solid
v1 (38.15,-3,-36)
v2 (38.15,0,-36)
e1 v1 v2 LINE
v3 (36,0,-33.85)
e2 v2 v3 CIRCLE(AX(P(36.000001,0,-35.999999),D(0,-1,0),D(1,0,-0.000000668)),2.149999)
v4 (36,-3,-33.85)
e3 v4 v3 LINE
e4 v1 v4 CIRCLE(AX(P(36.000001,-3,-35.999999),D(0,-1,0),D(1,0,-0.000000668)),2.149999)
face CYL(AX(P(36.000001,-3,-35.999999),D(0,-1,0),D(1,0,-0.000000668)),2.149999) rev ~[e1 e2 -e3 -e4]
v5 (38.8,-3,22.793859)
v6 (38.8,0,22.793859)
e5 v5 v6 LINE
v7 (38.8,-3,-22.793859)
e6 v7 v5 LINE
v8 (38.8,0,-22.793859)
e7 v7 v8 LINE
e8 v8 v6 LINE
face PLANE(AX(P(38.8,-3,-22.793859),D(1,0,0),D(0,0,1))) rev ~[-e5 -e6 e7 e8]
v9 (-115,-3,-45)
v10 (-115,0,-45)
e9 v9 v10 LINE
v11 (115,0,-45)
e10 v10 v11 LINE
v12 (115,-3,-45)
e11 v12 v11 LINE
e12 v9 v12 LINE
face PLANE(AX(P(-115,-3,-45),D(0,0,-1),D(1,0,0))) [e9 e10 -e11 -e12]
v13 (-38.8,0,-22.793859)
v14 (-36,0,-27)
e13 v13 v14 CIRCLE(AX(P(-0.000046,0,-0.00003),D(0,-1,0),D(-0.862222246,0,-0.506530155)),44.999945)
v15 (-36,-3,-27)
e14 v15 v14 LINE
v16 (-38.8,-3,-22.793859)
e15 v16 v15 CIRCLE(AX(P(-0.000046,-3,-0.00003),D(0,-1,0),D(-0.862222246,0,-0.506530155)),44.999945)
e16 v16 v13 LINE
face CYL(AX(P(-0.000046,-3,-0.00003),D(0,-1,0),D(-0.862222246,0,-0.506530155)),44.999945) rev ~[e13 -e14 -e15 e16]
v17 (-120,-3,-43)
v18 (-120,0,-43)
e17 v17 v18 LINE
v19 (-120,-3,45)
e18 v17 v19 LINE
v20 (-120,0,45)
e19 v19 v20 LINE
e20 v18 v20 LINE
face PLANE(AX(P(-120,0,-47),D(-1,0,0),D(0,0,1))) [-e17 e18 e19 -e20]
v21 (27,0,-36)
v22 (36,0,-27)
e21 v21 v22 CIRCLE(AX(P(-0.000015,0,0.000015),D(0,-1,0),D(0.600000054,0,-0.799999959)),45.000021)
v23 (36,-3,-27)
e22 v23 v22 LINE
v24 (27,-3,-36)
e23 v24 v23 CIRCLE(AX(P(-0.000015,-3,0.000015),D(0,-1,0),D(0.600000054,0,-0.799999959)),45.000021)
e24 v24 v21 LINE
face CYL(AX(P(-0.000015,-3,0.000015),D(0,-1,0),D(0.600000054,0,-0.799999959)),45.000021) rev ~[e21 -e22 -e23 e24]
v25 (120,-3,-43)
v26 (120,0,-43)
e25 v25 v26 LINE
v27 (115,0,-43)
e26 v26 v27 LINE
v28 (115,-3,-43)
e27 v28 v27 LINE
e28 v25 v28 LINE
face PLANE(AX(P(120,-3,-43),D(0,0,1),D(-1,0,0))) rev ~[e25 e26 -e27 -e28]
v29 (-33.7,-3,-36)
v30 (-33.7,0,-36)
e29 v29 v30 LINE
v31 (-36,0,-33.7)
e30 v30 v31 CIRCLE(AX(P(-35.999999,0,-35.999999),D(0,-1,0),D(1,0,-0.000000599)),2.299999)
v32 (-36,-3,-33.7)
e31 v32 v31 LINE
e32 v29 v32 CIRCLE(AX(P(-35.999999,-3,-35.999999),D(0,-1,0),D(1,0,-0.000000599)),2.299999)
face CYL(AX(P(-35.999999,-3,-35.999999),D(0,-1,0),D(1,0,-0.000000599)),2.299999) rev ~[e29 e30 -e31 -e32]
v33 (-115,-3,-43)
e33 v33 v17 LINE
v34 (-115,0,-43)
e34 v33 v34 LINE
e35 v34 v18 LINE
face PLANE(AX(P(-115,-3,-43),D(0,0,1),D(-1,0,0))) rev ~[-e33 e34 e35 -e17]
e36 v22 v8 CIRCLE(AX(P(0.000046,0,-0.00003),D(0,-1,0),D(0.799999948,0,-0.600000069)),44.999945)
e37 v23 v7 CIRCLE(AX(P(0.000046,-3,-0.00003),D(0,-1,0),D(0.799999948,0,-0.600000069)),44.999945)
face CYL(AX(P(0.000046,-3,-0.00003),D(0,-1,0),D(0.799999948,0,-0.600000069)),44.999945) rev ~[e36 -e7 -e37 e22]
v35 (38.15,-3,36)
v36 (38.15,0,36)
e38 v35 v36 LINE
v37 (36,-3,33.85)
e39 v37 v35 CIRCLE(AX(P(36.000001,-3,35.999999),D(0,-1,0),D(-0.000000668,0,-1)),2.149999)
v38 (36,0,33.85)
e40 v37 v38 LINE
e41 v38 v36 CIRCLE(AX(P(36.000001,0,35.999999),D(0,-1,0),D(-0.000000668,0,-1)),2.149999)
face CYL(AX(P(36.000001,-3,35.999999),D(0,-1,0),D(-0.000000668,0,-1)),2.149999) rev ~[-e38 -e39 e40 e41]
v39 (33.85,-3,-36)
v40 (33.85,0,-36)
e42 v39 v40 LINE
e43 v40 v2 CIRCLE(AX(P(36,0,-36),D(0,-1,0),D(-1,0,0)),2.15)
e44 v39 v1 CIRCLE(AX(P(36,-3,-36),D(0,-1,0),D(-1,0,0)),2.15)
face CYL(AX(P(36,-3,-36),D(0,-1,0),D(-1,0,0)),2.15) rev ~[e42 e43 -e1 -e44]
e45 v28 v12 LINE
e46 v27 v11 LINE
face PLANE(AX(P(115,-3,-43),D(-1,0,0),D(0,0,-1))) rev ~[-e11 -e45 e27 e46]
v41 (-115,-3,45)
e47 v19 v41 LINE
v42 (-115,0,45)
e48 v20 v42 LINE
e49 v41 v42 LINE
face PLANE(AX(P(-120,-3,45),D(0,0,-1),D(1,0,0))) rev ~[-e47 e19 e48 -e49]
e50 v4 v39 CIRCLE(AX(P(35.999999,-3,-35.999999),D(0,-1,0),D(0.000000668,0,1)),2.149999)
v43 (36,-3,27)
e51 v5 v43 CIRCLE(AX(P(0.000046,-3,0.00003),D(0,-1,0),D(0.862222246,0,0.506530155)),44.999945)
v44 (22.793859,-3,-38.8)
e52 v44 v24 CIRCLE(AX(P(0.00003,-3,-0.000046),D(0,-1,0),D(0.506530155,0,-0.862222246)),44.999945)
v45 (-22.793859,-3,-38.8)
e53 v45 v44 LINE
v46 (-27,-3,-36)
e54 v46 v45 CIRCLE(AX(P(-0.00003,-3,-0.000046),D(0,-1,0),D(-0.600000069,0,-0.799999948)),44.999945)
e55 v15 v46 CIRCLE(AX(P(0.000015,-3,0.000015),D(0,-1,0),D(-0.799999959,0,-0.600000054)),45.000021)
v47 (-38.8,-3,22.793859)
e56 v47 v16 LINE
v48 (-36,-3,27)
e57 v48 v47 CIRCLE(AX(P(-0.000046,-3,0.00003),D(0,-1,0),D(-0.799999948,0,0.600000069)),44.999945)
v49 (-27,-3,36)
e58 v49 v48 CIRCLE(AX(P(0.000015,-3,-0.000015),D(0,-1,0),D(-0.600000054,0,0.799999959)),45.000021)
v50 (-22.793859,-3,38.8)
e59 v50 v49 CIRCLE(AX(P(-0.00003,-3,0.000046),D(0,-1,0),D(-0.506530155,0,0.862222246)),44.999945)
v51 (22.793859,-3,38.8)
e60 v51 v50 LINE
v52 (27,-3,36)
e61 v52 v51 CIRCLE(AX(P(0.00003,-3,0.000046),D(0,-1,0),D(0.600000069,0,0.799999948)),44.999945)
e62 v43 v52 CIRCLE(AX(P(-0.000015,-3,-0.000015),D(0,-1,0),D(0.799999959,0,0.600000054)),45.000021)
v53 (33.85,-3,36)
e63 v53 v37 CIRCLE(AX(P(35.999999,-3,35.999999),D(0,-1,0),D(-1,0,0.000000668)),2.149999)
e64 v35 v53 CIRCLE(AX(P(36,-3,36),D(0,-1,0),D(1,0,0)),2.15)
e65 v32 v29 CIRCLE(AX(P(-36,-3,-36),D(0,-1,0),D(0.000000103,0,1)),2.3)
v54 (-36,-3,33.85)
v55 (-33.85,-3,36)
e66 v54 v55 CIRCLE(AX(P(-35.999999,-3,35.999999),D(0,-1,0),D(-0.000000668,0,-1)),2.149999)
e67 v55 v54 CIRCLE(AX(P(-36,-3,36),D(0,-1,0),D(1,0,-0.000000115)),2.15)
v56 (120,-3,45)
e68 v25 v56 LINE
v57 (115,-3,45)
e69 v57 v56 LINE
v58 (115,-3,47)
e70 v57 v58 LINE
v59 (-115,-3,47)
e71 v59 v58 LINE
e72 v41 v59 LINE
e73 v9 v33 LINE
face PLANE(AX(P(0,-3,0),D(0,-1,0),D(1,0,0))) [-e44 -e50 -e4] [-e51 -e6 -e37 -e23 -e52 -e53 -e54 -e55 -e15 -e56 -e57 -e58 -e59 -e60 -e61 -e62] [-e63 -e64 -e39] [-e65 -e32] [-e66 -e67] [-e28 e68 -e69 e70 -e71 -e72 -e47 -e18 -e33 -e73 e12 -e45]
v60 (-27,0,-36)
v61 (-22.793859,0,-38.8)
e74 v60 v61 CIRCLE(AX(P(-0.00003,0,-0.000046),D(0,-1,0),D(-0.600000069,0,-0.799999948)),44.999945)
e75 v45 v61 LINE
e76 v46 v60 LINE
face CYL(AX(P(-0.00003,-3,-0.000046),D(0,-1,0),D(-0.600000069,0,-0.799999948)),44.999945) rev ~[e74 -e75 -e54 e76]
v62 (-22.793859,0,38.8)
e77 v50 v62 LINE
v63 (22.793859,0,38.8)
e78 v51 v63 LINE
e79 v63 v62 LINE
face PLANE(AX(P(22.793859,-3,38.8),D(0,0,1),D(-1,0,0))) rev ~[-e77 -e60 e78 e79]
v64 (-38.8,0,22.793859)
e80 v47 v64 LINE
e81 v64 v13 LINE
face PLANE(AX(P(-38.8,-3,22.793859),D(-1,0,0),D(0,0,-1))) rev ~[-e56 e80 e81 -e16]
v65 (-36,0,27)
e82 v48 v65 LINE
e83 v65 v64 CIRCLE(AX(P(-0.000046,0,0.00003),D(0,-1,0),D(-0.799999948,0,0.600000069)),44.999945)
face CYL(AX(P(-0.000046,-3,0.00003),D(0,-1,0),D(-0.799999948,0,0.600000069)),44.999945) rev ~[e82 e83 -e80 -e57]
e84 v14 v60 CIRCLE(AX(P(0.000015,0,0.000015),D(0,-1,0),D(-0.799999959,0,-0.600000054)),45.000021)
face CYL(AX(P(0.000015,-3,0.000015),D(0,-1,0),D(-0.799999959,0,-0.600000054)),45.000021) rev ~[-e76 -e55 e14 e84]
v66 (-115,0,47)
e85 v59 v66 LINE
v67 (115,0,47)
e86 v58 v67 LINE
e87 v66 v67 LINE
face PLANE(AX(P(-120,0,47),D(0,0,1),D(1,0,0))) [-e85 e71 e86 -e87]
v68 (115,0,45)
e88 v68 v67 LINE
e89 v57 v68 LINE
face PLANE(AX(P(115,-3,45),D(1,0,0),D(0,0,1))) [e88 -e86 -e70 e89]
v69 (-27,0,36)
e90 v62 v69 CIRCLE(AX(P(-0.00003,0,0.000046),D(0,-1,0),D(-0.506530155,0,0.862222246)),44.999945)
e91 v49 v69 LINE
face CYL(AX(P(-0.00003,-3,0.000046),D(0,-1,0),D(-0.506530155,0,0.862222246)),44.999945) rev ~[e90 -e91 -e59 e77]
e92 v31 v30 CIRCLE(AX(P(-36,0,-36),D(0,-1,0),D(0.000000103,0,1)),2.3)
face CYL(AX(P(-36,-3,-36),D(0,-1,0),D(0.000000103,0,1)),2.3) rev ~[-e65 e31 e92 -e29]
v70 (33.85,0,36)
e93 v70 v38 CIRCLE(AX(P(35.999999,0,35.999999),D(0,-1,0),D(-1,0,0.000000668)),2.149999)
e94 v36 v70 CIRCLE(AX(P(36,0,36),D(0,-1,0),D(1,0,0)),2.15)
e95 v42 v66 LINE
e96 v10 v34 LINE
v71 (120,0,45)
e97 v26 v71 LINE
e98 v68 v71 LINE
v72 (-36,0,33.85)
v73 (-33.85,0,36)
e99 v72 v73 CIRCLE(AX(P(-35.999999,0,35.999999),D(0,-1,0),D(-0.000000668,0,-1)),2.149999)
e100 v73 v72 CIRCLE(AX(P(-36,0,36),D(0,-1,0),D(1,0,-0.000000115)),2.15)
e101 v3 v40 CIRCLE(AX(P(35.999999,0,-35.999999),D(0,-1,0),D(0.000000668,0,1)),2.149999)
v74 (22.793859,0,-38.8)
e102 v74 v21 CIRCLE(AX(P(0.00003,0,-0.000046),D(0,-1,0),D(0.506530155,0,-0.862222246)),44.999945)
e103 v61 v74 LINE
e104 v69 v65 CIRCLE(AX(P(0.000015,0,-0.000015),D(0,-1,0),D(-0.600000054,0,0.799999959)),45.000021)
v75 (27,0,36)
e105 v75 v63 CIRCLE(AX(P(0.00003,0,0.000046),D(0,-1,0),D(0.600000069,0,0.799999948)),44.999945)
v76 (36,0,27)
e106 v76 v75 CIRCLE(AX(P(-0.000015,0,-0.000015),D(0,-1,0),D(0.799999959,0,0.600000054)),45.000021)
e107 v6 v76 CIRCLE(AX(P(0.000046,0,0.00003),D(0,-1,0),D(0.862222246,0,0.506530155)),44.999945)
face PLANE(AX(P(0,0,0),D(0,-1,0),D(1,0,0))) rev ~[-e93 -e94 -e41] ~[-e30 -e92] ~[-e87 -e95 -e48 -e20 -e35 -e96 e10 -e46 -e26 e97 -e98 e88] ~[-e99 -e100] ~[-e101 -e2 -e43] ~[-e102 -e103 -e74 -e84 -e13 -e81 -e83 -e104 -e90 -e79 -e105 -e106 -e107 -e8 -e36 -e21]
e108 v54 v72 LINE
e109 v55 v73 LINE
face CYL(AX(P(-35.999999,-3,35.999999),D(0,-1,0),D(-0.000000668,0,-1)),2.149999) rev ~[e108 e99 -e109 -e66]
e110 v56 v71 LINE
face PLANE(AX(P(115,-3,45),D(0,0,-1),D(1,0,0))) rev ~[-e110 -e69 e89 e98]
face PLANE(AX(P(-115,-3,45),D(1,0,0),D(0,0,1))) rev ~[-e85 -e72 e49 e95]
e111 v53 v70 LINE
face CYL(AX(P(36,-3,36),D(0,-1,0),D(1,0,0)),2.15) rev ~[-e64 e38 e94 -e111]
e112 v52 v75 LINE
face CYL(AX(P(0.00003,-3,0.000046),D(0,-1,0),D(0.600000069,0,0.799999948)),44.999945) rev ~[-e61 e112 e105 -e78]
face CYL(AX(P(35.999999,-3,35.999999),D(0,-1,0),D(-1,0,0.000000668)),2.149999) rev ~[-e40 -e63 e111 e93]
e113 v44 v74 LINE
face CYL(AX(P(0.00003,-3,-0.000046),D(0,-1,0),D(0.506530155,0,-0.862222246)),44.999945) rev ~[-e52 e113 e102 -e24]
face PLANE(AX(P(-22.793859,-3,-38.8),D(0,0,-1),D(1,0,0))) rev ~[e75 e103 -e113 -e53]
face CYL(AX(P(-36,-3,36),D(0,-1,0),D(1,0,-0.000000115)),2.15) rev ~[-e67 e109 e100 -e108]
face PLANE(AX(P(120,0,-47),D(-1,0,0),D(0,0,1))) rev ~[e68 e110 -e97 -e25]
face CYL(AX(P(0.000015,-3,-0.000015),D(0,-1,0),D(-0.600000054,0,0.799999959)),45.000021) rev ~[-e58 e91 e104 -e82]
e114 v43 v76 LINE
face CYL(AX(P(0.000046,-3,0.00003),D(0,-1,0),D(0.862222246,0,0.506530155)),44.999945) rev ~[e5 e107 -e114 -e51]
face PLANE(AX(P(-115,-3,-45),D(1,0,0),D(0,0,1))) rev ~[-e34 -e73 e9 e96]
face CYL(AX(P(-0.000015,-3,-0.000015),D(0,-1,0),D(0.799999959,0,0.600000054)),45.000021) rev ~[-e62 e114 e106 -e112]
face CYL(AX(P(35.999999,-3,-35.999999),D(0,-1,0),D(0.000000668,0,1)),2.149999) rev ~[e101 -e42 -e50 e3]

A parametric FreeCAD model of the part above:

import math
import FreeCAD as App
import Part
import Sketcher

V = App.Vector


def add_polygon(sketch, points):
    """Adds a closed chain of lines whose ends are joined by coincident constraints."""
    first, n = sketch.GeometryCount, len(points)
    for a, b in zip(points, points[1:] + points[:1]):
        sketch.addGeometry(Part.LineSegment(App.Vector(*a, 0), App.Vector(*b, 0)), False)
    for i in range(n):
        sketch.addConstraint(Sketcher.Constraint("Coincident", first + i, 2, first + (i + 1) % n, 1))

doc = App.newDocument("Part")
body = doc.addObject("PartDesign::Body", "Body")

sketch1 = body.newObject("Sketcher::SketchObject", "Sketch")
sketch1.AttachmentSupport = (doc.getObject("XZ_Plane"), [""])
sketch1.MapMode = "FlatFace"
add_polygon(sketch1, [(-120, 47), (-120, -47), (120, -47), (120, 47)])
sketch1.addConstraint([
    Sketcher.Constraint("Vertical", 0),
    Sketcher.Constraint("Horizontal", 1),
    Sketcher.Constraint("Vertical", 2),
    Sketcher.Constraint("Horizontal", 3),
    Sketcher.Constraint("Symmetric", 0, 2, 2, 2, -1, 1),
    Sketcher.Constraint("DistanceX", 1, 1, 1, 2, 240.0),
    Sketcher.Constraint("DistanceY", 0, 2, 0, 1, 94.0),
])
pad1 = body.newObject("PartDesign::Pad", "Pad")
pad1.Profile = sketch1
pad1.Length = 3

sketch2 = body.newObject("Sketcher::SketchObject", "Sketch001")
sketch2.AttachmentSupport = (doc.getObject("XZ_Plane"), [""])
sketch2.MapMode = "FlatFace"
sketch2.AttachmentOffset = App.Placement(V(0, 0, 3), App.Rotation())
add_polygon(sketch2, [(-120, 47), (-120, 45), (-115, 45), (-115, 47)])
add_polygon(sketch2, [(-120, -43), (-120, -47), (120, -47), (120, -43), (115, -43), (115, -45), (-115, -45), (-115, -43)])
add_polygon(sketch2, [(115, 47), (115, 45), (120, 45), (120, 47)])
sketch2.addConstraint([
    Sketcher.Constraint("Vertical", 0),
    Sketcher.Constraint("Horizontal", 1),
    Sketcher.Constraint("Vertical", 2),
    Sketcher.Constraint("Horizontal", 3),
    Sketcher.Constraint("Vertical", 4),
    Sketcher.Constraint("Horizontal", 5),
    Sketcher.Constraint("Vertical", 6),
    Sketcher.Constraint("Horizontal", 7),
    Sketcher.Constraint("Vertical", 8),
    Sketcher.Constraint("Horizontal", 9),
    Sketcher.Constraint("Vertical", 10),
    Sketcher.Constraint("Horizontal", 11),
    Sketcher.Constraint("Vertical", 12),
    Sketcher.Constraint("Horizontal", 13),
    Sketcher.Constraint("Vertical", 14),
    Sketcher.Constraint("Horizontal", 15),
    Sketcher.Constraint("Symmetric", 3, 2, 5, 2, -1, 1),
    Sketcher.Constraint("Symmetric", 1, 2, 8, 2, -1, 1),
    Sketcher.Constraint("Symmetric", 9, 2, 12, 2, -1, 1),
    Sketcher.Constraint("Symmetric", 4, 2, 14, 2, -1, 1),
    Sketcher.Constraint("Symmetric", 7, 2, 10, 2, -2),
    Sketcher.Constraint("Vertical", 3, 2, 4, 2),
    Sketcher.Constraint("Equal", 2, 8),
    Sketcher.Constraint("DistanceX", 1, 1, 1, 2, 5.0),
    Sketcher.Constraint("DistanceX", 5, 1, 5, 2, 240.0),
    Sketcher.Constraint("DistanceY", 0, 2, 0, 1, 2.0),
    Sketcher.Constraint("DistanceY", -1, 1, 0, 2, 45.0),
])
pocket1 = body.newObject("PartDesign::Pocket", "Pocket")
pocket1.Profile = sketch2
pocket1.Length = 25

sketch3 = body.newObject("Sketcher::SketchObject", "Sketch002")
sketch3.AttachmentSupport = (doc.getObject("XZ_Plane"), [""])
sketch3.MapMode = "FlatFace"
sketch3.AttachmentOffset = App.Placement(V(0, 0, 3), App.Rotation())
sketch3.addGeometry([
    Part.ArcOfCircle(Part.Circle(V(-35.999999, 35.999999, 0), V(0, 0, 1), 2.149999), math.radians(-90.000038), math.radians(0.000038)),
    Part.ArcOfCircle(Part.Circle(V(-36, 36, 0), V(0, 0, 1), 2.15), math.radians(-0.000007), math.radians(270.000007)),
    Part.ArcOfCircle(Part.Circle(V(36.000001, 35.999999, 0), V(0, 0, 1), 2.149999), math.radians(-90.000038), math.radians(0.000038)),
    Part.ArcOfCircle(Part.Circle(V(36, 36, 0), V(0, 0, 1), 2.15), math.radians(0), math.radians(180)),
    Part.ArcOfCircle(Part.Circle(V(35.999999, 35.999999, 0), V(0, 0, 1), 2.149999), math.radians(179.999962), math.radians(270.000038)),
    Part.ArcOfCircle(Part.Circle(V(36, -36, 0), V(0, 0, 1), 2.15), math.radians(180), math.radians(360)),
    Part.ArcOfCircle(Part.Circle(V(36.000001, -35.999999, 0), V(0, 0, 1), 2.149999), math.radians(-0.000038), math.radians(90.000038)),
    Part.ArcOfCircle(Part.Circle(V(35.999999, -35.999999, 0), V(0, 0, 1), 2.149999), math.radians(89.999962), math.radians(180.000038)),
    Part.ArcOfCircle(Part.Circle(V(-36, -36, 0), V(0, 0, 1), 2.3), math.radians(89.999994), math.radians(360.000006)),
    Part.ArcOfCircle(Part.Circle(V(-35.999999, -35.999999, 0), V(0, 0, 1), 2.299999), math.radians(-0.000034), math.radians(90.000034)),
    Part.ArcOfCircle(Part.Circle(V(0.00003, -0.000046, 0), V(0, 0, 1), 44.999945), math.radians(-59.56702), math.radians(-53.130097)),
    Part.ArcOfCircle(Part.Circle(V(-0.000015, 0.000015, 0), V(0, 0, 1), 45.000021), math.radians(-53.130098), math.radians(-36.869902)),
    Part.ArcOfCircle(Part.Circle(V(0.000046, -0.00003, 0), V(0, 0, 1), 44.999945), math.radians(-36.869903), math.radians(-30.43298)),
    Part.LineSegment(V(38.8, -22.793859, 0), V(38.8, 22.793859, 0)),
    Part.ArcOfCircle(Part.Circle(V(0.000046, 0.00003, 0), V(0, 0, 1), 44.999945), math.radians(30.43298), math.radians(36.869903)),
    Part.ArcOfCircle(Part.Circle(V(-0.000015, -0.000015, 0), V(0, 0, 1), 45.000021), math.radians(36.869902), math.radians(53.130098)),
    Part.ArcOfCircle(Part.Circle(V(0.00003, 0.000046, 0), V(0, 0, 1), 44.999945), math.radians(53.130097), math.radians(59.56702)),
    Part.LineSegment(V(22.793859, 38.8, 0), V(-22.793859, 38.8, 0)),
    Part.ArcOfCircle(Part.Circle(V(-0.00003, 0.000046, 0), V(0, 0, 1), 44.999945), math.radians(120.43298), math.radians(126.869903)),
    Part.ArcOfCircle(Part.Circle(V(0.000015, -0.000015, 0), V(0, 0, 1), 45.000021), math.radians(126.869902), math.radians(143.130098)),
    Part.ArcOfCircle(Part.Circle(V(-0.000046, 0.00003, 0), V(0, 0, 1), 44.999945), math.radians(143.130097), math.radians(149.56702)),
    Part.LineSegment(V(-38.8, 22.793859, 0), V(-38.8, -22.793859, 0)),
    Part.ArcOfCircle(Part.Circle(V(-0.000046, -0.00003, 0), V(0, 0, 1), 44.999945), math.radians(-149.56702), math.radians(-143.130097)),
    Part.ArcOfCircle(Part.Circle(V(0.000015, 0.000015, 0), V(0, 0, 1), 45.000021), math.radians(-143.130098), math.radians(-126.869902)),
    Part.ArcOfCircle(Part.Circle(V(-0.00003, -0.000046, 0), V(0, 0, 1), 44.999945), math.radians(-126.869903), math.radians(-120.43298)),
    Part.LineSegment(V(-22.793859, -38.8, 0), V(22.793859, -38.8, 0)),
], False)
sketch3.addConstraint([
    Sketcher.Constraint("Tangent", 0, 1, 1, 2),
    Sketcher.Constraint("Coincident", 1, 1, 0, 2),
    Sketcher.Constraint("Tangent", 2, 2, 3, 1),
    Sketcher.Constraint("Tangent", 3, 2, 4, 1),
    Sketcher.Constraint("Tangent", 4, 2, 2, 1),
    Sketcher.Constraint("Tangent", 5, 2, 6, 1),
    Sketcher.Constraint("Tangent", 6, 2, 7, 1),
    Sketcher.Constraint("Tangent", 7, 2, 5, 1),
    Sketcher.Constraint("Tangent", 8, 1, 9, 2),
    Sketcher.Constraint("Coincident", 9, 1, 8, 2),
    Sketcher.Constraint("Tangent", 10, 2, 11, 1),
    Sketcher.Constraint("Tangent", 11, 2, 12, 1),
    Sketcher.Constraint("Coincident", 12, 2, 13, 1),
    Sketcher.Constraint("Coincident", 13, 2, 14, 1),
    Sketcher.Constraint("Tangent", 14, 2, 15, 1),
    Sketcher.Constraint("Tangent", 15, 2, 16, 1),
    Sketcher.Constraint("Coincident", 16, 2, 17, 1),
    Sketcher.Constraint("Coincident", 17, 2, 18, 1),
    Sketcher.Constraint("Tangent", 18, 2, 19, 1),
    Sketcher.Constraint("Tangent", 19, 2, 20, 1),
    Sketcher.Constraint("Coincident", 20, 2, 21, 1),
    Sketcher.Constraint("Coincident", 21, 2, 22, 1),
    Sketcher.Constraint("Tangent", 22, 2, 23, 1),
    Sketcher.Constraint("Tangent", 23, 2, 24, 1),
    Sketcher.Constraint("Coincident", 24, 2, 25, 1),
    Sketcher.Constraint("Coincident", 25, 2, 10, 1),
    Sketcher.Constraint("Vertical", 13),
    Sketcher.Constraint("Horizontal", 17),
    Sketcher.Constraint("Vertical", 21),
    Sketcher.Constraint("Horizontal", 25),
    Sketcher.Constraint("Equal", 1, 2),
    Sketcher.Constraint("Equal", 4, 5),
    Sketcher.Constraint("Equal", 10, 12),
    Sketcher.Constraint("Equal", 12, 14),
    Sketcher.Constraint("Equal", 11, 15),
    Sketcher.Constraint("Equal", 14, 16),
    Sketcher.Constraint("Equal", 16, 18),
    Sketcher.Constraint("Equal", 15, 19),
    Sketcher.Constraint("Equal", 18, 20),
    Sketcher.Constraint("Equal", 20, 22),
    Sketcher.Constraint("Equal", 19, 23),
    Sketcher.Constraint("Equal", 22, 24),
    Sketcher.Constraint("Symmetric", 0, 3, 5, 3, -1, 1),
    Sketcher.Constraint("Symmetric", 2, 3, 8, 3, -1, 1),
    Sketcher.Constraint("Symmetric", 10, 3, 18, 3, -1, 1),
    Sketcher.Constraint("Symmetric", 14, 3, 22, 3, -1, 1),
    Sketcher.Constraint("Symmetric", 0, 3, 2, 3, -2),
    Sketcher.Constraint("Symmetric", 16, 3, 18, 3, -2),
    Sketcher.Constraint("Horizontal", 4, 3, 1, 1),
    Sketcher.Constraint("Horizontal", 1, 1, 2, 2),
    Sketcher.Constraint("Horizontal", 2, 2, 3, 2),
    Sketcher.Constraint("Horizontal", 9, 3, 5, 2),
    Sketcher.Constraint("Horizontal", 5, 2, 7, 2),
    Sketcher.Constraint("Horizontal", 7, 2, 9, 1),
    Sketcher.Constraint("Horizontal", 9, 1, 10, 2),
    Sketcher.Constraint("Horizontal", 3, 2, 15, 2),
    Sketcher.Constraint("Horizontal", 15, 2, 18, 2),
    Sketcher.Constraint("Horizontal", 14, 2, 19, 2),
    Sketcher.Constraint("Horizontal", 13, 2, 20, 2),
    Sketcher.Constraint("Horizontal", 11, 2, 22, 2),
    Sketcher.Constraint("Horizontal", 10, 2, 23, 2),
    Sketcher.Constraint("Vertical", 9, 3, 0, 1),
    Sketcher.Constraint("Vertical", 7, 3, 4, 2),
    Sketcher.Constraint("Vertical", 4, 2, 6, 2),
    Sketcher.Constraint("Vertical", 0, 1, 8, 1),
    Sketcher.Constraint("Vertical", 6, 2, 11, 2),
    Sketcher.Constraint("Vertical", 11, 2, 14, 2),
    Sketcher.Constraint("Vertical", 17, 2, 24, 2),
    Sketcher.Constraint("Equal", 25, 13),
    Sketcher.Constraint("Radius", 8, 2.3),
    Sketcher.Constraint("Radius", 0, 2.149999),
    Sketcher.Constraint("DistanceX", 0, 3, -1, 1, 35.999999),
    Sketcher.Constraint("DistanceY", -1, 1, 0, 3, 35.999999),
    Sketcher.Constraint("DistanceX", -1, 1, 10, 2, 27.0),
    Sketcher.Constraint("DistanceY", 11, 2, -1, 1, 27.0),
    Sketcher.Constraint("DistanceX", -1, 1, 12, 2, 38.8),
    Sketcher.Constraint("Radius", 11, 45.000021),
    Sketcher.Constraint("Radius", 10, 44.999945),
])
pocket2 = body.newObject("PartDesign::Pocket", "Pocket001")
pocket2.Profile = sketch3
pocket2.Length = 25

doc.recompute()
